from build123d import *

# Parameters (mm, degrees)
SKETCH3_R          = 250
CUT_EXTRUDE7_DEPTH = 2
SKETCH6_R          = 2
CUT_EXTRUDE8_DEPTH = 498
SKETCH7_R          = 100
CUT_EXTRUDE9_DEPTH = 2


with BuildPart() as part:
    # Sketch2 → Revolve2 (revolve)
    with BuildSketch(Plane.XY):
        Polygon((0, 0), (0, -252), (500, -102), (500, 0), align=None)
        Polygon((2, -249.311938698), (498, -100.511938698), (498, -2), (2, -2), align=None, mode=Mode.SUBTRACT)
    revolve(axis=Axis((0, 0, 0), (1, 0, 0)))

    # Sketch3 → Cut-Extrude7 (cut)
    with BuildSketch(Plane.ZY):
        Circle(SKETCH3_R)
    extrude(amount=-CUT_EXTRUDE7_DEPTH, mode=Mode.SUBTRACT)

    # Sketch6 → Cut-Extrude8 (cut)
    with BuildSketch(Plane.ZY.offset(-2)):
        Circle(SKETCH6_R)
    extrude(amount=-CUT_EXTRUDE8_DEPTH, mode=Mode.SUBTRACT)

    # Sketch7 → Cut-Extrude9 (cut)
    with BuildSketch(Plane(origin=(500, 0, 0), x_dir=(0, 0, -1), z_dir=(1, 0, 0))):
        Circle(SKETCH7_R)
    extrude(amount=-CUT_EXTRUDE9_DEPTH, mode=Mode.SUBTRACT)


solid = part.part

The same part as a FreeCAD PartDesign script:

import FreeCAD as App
import Part
import Sketcher

V = App.Vector


def add_polygon(sketch, points):
    """Adds a closed chain of lines whose ends are joined by coincident constraints."""
    first, n = sketch.GeometryCount, len(points)
    for a, b in zip(points, points[1:] + points[:1]):
        sketch.addGeometry(Part.LineSegment(App.Vector(*a, 0), App.Vector(*b, 0)), False)
    for i in range(n):
        sketch.addConstraint(Sketcher.Constraint("Coincident", first + i, 2, first + (i + 1) % n, 1))

doc = App.newDocument("Part")
params = doc.addObject("Spreadsheet::Sheet", "Params")
for row, (alias, value) in enumerate([
    ("sketch1_width", "500 mm"),
    ("sketch1_width2", "496 mm"),
    ("sketch1_height", "252 mm"),
    ("sketch1_height2", "102 mm"),
    ("revolution_angle", "360 deg"),
    ("sketch2_diameter", "500 mm"),
    ("pocket1_length", "2 mm"),
    ("sketch3_diameter", "4 mm"),
    ("pocket2_length", "498 mm"),
    ("sketch4_diameter", "200 mm"),
    ("pocket3_length", "2 mm"),
], start=1):
    params.set(f"A{row}", alias)
    params.set(f"B{row}", "=" + value)
    params.setAlias(f"B{row}", alias)

body = doc.addObject("PartDesign::Body", "Body")

# Sketch on XY plane
sketch1 = body.newObject("Sketcher::SketchObject", "Sketch")
sketch1.AttachmentSupport = (doc.getObject("XY_Plane"), [""])
sketch1.MapMode = "FlatFace"
add_polygon(sketch1, [(0, 0), (0, -252), (500, -102), (500, 0)])  # lines 0-3
add_polygon(sketch1, [(498, -101), (2, -249), (2, -2), (498, -2)])  # lines 4-7
sketch1.addConstraint([
    Sketcher.Constraint("Vertical", 0),
    Sketcher.Constraint("Vertical", 2),
    Sketcher.Constraint("Horizontal", 3),
    Sketcher.Constraint("Vertical", 5),
    Sketcher.Constraint("Horizontal", 6),
    Sketcher.Constraint("Vertical", 7),
    Sketcher.Constraint("Coincident", 3, 2, -1, 1),
    Sketcher.Constraint("Parallel", 1, 4),
    Sketcher.Constraint("DistanceX", 3, 2, 3, 1, 500.0),
    Sketcher.Constraint("DistanceX", 6, 1, 6, 2, 496.0),
    Sketcher.Constraint("DistanceY", 0, 2, 0, 1, 252.0),
    Sketcher.Constraint("DistanceY", 2, 1, 2, 2, 102.0),
    Sketcher.Constraint("DistanceX", -1, 1, 4, 2, 2.0),
    Sketcher.Constraint("DistanceY", 5, 2, -1, 1, 2.0),
    Sketcher.Constraint("DistanceY", 5, 1, 5, 2, 247.311939),
])
sketch1.setExpression("Constraints[16]", "Params.sketch1_width")
sketch1.setExpression("Constraints[17]", "Params.sketch1_width2")
sketch1.setExpression("Constraints[18]", "Params.sketch1_height")
sketch1.setExpression("Constraints[19]", "Params.sketch1_height2")
revolution = body.newObject("PartDesign::Revolution", "Revolution")
revolution.Profile = sketch1
revolution.ReferenceAxis = (sketch1, ["H_Axis"])
revolution.setExpression("Angle", "Params.revolution_angle")

# Sketch on YZ plane
sketch2 = body.newObject("Sketcher::SketchObject", "Sketch001")
sketch2.AttachmentSupport = (doc.getObject("YZ_Plane"), [""])
sketch2.MapMode = "FlatFace"
sketch2.addGeometry(Part.Circle(V(0, 0, 0), V(0, 0, 1), 250), False)
sketch2.addConstraint([
    Sketcher.Constraint("Coincident", 0, 3, -1, 1),
    Sketcher.Constraint("Diameter", 0, 500.0),
])
sketch2.setExpression("Constraints[1]", "Params.sketch2_diameter")
pocket1 = body.newObject("PartDesign::Pocket", "Pocket")
pocket1.Profile = sketch2
pocket1.setExpression("Length", "Params.pocket1_length")
pocket1.Reversed = True

# Sketch on YZ plane
sketch3 = body.newObject("Sketcher::SketchObject", "Sketch002")
sketch3.AttachmentSupport = (doc.getObject("YZ_Plane"), [""])
sketch3.MapMode = "FlatFace"
sketch3.AttachmentOffset = App.Placement(V(0, 0, 2), App.Rotation())
sketch3.addGeometry(Part.Circle(V(0, 0, 0), V(0, 0, 1), 2), False)
sketch3.addConstraint([
    Sketcher.Constraint("Coincident", 0, 3, -1, 1),
    Sketcher.Constraint("Diameter", 0, 4.0),
])
sketch3.setExpression("Constraints[1]", "Params.sketch3_diameter")
pocket2 = body.newObject("PartDesign::Pocket", "Pocket001")
pocket2.Profile = sketch3
pocket2.setExpression("Length", "Params.pocket2_length")
pocket2.Reversed = True

# Sketch on YZ plane
sketch4 = body.newObject("Sketcher::SketchObject", "Sketch003")
sketch4.AttachmentSupport = (doc.getObject("YZ_Plane"), [""])
sketch4.MapMode = "FlatFace"
sketch4.AttachmentOffset = App.Placement(V(0, 0, 500), App.Rotation())
sketch4.addGeometry(Part.Circle(V(0, 0, 0), V(0, 0, 1), 100), False)
sketch4.addConstraint([
    Sketcher.Constraint("Coincident", 0, 3, -1, 1),
    Sketcher.Constraint("Diameter", 0, 200.0),
])
sketch4.setExpression("Constraints[1]", "Params.sketch4_diameter")
pocket3 = body.newObject("PartDesign::Pocket", "Pocket002")
pocket3.Profile = sketch4
pocket3.setExpression("Length", "Params.pocket3_length")

doc.recompute()
